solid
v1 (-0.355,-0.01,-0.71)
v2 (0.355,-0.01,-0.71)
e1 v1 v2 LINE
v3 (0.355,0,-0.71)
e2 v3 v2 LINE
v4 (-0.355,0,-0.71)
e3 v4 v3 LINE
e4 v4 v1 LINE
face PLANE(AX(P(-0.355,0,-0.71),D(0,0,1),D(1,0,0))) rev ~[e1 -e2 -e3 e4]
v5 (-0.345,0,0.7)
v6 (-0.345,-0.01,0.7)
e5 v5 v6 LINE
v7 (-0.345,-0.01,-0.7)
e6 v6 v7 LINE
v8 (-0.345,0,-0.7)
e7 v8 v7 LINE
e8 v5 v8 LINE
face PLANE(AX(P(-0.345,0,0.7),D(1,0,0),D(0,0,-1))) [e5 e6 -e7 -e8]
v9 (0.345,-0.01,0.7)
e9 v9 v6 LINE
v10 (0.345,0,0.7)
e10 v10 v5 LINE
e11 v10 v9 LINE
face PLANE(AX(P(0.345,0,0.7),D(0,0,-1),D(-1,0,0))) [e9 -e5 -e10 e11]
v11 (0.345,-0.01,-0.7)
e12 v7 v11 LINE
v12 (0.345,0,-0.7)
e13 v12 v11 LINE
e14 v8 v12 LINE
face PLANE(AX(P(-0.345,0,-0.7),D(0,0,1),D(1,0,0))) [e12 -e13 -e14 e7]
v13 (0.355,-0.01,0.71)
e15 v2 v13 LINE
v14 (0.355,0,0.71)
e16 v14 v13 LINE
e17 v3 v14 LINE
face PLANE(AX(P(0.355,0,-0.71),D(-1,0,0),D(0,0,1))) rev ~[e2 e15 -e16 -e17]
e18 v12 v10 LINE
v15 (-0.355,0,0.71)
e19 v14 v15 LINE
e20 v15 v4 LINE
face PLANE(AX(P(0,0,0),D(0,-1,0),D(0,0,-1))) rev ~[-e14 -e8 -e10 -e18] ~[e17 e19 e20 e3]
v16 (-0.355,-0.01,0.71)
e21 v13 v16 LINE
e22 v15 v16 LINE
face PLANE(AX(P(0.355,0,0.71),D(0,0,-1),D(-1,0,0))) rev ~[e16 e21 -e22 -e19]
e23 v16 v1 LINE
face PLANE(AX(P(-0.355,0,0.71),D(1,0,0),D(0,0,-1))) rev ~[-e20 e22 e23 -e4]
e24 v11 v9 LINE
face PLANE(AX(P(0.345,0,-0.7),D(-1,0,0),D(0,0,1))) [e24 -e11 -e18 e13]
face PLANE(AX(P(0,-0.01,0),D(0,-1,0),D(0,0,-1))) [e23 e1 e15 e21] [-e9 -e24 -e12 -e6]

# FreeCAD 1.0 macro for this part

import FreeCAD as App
import Part
import Sketcher

V = App.Vector


def add_polygon(sketch, points):
    """Adds a closed chain of lines whose ends are joined by coincident constraints."""
    first, n = sketch.GeometryCount, len(points)
    for a, b in zip(points, points[1:] + points[:1]):
        sketch.addGeometry(Part.LineSegment(App.Vector(*a, 0), App.Vector(*b, 0)), False)
    for i in range(n):
        sketch.addConstraint(Sketcher.Constraint("Coincident", first + i, 2, first + (i + 1) % n, 1))

doc = App.newDocument("Part")
params = doc.addObject("Spreadsheet::Sheet", "Params")
for row, (alias, value) in enumerate([
    ("sketch1_height", "1.4 mm"),
    ("sketch1_width", "0.71 mm"),
    ("sketch1_height2", "1.42 mm"),
    ("pad1_length", "0.01 mm"),
], start=1):
    params.set(f"A{row}", alias)
    params.set(f"B{row}", "=" + value)
    params.setAlias(f"B{row}", alias)

body = doc.addObject("PartDesign::Body", "Body")

# Sketch on XZ plane
sketch1 = body.newObject("Sketcher::SketchObject", "Sketch")
sketch1.AttachmentSupport = (doc.getObject("XZ_Plane"), [""])
sketch1.MapMode = "FlatFace"
add_polygon(sketch1, [(0.355, 0.71), (-0.355, 0.71), (-0.355, -0.71), (0.355, -0.71)])  # lines 0-3
add_polygon(sketch1, [(0.345, -0.7), (-0.345, -0.7), (-0.345, 0.7), (0.345, 0.7)])  # lines 4-7
sketch1.addConstraint(Sketcher.Constraint("Horizontal", 0))
sketch1.addConstraint(Sketcher.Constraint("Vertical", 1))
sketch1.addConstraint(Sketcher.Constraint("Horizontal", 2))
sketch1.addConstraint(Sketcher.Constraint("Vertical", 3))
sketch1.addConstraint(Sketcher.Constraint("Horizontal", 4))
sketch1.addConstraint(Sketcher.Constraint("Vertical", 5))
sketch1.addConstraint(Sketcher.Constraint("Horizontal", 6))
sketch1.addConstraint(Sketcher.Constraint("Vertical", 7))
sketch1.addConstraint(Sketcher.Constraint("Symmetric", 0, 2, 2, 2, -1, 1))
sketch1.addConstraint(Sketcher.Constraint("Symmetric", 4, 2, 6, 2, -1, 1))
sketch1.addConstraint(Sketcher.Constraint("DistanceY", 5, 1, 5, 2, 1.4))
sketch1.addConstraint(Sketcher.Constraint("DistanceX", 4, 2, -1, 1, 0.345))
sketch1.addConstraint(Sketcher.Constraint("DistanceX", 0, 2, 0, 1, 0.71))
sketch1.addConstraint(Sketcher.Constraint("DistanceY", 1, 2, 1, 1, 1.42))
sketch1.setExpression("Constraints[18]", "Params.sketch1_height")
sketch1.setExpression("Constraints[20]", "Params.sketch1_width")
sketch1.setExpression("Constraints[21]", "Params.sketch1_height2")
pad1 = body.newObject("PartDesign::Pad", "Pad")
pad1.Profile = sketch1
pad1.setExpression("Length", "Params.pad1_length")

doc.recompute()
